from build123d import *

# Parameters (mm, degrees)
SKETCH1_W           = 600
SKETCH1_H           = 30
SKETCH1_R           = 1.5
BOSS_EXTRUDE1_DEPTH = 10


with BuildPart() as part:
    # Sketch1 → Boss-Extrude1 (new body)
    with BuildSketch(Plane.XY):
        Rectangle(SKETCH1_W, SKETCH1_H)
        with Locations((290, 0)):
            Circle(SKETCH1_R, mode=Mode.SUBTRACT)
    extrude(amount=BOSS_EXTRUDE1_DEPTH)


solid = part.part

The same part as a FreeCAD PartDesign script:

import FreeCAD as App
import Part
import Sketcher


def add_polygon(sketch, points):
    """Adds a closed chain of lines whose ends are joined by coincident constraints."""
    first, n = sketch.GeometryCount, len(points)
    for a, b in zip(points, points[1:] + points[:1]):
        sketch.addGeometry(Part.LineSegment(App.Vector(*a, 0), App.Vector(*b, 0)), False)
    for i in range(n):
        sketch.addConstraint(Sketcher.Constraint("Coincident", first + i, 2, first + (i + 1) % n, 1))

doc = App.newDocument("Part")
body = doc.addObject("PartDesign::Body", "Body")

sketch1 = doc.addObject("Sketcher::SketchObject", "Sketch")
body.addObject(sketch1)
sketch1.AttachmentSupport = (doc.XY_Plane, [""])
sketch1.MapMode = "FlatFace"
add_polygon(sketch1, [(-300, 15), (-300, -15), (300, -15), (300, 15)])
sketch1.addGeometry(Part.Circle(App.Vector(290, 0, 0), App.Vector(0, 0, 1), 1.5), False)
sketch1.addConstraint(Sketcher.Constraint("Vertical", 0))
sketch1.addConstraint(Sketcher.Constraint("Horizontal", 1))
sketch1.addConstraint(Sketcher.Constraint("Vertical", 2))
sketch1.addConstraint(Sketcher.Constraint("Horizontal", 3))
sketch1.addConstraint(Sketcher.Constraint("Symmetric", 0, 2, 2, 2, -1, 1))
sketch1.addConstraint(Sketcher.Constraint("PointOnObject", 4, 3, -1))
sketch1.addConstraint(Sketcher.Constraint("Diameter", 4, 3.0))
sketch1.addConstraint(Sketcher.Constraint("DistanceX", 1, 1, 1, 2, 600.0))
sketch1.addConstraint(Sketcher.Constraint("DistanceY", 0, 2, 0, 1, 30.0))
sketch1.addConstraint(Sketcher.Constraint("DistanceX", -1, 1, 4, 3, 290.0))
pad1 = doc.addObject("PartDesign::Pad", "Pad")
body.addObject(pad1)
pad1.Profile = sketch1
pad1.Length = 10

doc.recompute()
